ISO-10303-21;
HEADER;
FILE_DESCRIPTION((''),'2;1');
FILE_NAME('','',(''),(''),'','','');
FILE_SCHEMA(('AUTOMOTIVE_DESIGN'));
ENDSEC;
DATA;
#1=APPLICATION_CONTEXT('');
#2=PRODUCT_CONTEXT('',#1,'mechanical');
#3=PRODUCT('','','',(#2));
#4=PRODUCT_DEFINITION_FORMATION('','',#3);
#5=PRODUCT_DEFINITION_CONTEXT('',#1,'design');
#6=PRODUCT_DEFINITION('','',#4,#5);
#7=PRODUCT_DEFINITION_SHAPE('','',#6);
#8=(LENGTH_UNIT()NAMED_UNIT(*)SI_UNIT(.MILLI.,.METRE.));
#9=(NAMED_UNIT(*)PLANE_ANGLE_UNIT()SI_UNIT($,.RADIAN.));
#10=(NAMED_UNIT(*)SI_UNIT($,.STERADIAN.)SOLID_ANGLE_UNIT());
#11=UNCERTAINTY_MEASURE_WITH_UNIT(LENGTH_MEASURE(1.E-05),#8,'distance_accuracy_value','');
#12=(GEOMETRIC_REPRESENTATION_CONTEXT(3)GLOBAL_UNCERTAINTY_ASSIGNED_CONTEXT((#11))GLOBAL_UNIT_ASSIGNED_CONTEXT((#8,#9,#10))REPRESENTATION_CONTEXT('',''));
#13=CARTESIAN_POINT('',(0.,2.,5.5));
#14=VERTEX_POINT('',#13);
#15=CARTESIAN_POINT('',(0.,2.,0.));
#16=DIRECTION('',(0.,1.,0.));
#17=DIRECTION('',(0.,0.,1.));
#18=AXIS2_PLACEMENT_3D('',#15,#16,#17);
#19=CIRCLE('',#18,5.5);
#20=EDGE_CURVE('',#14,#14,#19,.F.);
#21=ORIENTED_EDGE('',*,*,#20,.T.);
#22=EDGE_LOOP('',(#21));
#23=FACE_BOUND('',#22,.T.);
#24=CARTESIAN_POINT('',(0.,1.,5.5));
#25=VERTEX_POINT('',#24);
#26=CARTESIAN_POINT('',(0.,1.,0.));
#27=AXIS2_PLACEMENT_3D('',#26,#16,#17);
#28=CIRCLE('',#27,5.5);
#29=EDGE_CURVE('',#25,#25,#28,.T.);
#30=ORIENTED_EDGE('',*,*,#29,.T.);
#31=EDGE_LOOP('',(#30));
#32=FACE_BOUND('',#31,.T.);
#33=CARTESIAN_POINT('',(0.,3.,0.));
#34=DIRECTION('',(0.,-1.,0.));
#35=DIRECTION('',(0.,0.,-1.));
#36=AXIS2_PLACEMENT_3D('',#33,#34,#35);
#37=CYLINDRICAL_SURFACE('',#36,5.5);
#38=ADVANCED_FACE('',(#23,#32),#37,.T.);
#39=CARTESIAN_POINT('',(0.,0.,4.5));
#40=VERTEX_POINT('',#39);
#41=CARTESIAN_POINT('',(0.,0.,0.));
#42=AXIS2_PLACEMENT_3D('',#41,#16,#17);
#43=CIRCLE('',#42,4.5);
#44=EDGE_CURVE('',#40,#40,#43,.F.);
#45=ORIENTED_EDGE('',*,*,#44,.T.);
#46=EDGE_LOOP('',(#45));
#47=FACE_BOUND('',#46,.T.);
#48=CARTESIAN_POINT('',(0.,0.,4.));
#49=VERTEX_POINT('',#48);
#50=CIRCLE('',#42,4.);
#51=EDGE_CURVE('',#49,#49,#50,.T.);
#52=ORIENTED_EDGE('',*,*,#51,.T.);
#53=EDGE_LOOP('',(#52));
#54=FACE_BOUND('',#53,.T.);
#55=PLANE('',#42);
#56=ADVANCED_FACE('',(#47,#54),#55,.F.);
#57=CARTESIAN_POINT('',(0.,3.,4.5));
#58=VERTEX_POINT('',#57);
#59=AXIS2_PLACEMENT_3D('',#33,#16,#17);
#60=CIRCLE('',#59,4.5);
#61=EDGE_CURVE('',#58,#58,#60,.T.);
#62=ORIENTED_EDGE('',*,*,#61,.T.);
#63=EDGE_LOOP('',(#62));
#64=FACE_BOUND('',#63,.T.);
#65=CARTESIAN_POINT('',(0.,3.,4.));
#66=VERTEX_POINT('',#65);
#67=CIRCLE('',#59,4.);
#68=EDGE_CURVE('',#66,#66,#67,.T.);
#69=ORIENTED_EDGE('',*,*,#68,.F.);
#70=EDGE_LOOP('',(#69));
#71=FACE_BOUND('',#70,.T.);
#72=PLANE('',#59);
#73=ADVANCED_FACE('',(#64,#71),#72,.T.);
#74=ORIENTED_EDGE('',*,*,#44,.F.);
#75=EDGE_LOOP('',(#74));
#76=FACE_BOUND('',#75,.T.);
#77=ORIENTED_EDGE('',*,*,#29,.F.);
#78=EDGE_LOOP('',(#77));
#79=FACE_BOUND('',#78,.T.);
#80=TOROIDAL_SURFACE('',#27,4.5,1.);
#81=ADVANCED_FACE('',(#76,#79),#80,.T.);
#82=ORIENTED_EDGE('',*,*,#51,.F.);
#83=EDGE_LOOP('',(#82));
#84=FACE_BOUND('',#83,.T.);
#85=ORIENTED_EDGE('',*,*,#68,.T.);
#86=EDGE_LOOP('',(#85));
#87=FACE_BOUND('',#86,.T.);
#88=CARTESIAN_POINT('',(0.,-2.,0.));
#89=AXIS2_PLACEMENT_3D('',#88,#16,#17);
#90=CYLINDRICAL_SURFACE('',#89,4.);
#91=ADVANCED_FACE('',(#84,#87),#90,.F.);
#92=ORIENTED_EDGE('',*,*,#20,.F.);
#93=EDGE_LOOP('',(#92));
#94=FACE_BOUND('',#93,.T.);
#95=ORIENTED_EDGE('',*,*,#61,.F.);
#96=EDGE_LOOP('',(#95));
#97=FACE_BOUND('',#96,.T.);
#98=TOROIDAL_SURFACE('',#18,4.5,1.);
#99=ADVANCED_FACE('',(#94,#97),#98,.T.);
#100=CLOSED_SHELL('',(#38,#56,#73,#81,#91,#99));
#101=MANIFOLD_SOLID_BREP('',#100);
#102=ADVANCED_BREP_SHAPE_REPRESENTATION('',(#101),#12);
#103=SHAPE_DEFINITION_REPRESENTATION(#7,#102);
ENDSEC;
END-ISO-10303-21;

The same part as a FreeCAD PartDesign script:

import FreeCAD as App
import Part
import Sketcher
from FreeCAD import Vector
Q = App.Units.Quantity


def edges_at(feature, points):
    """Names of the edges that pass closest to the given points."""
    edges = feature.Shape.Edges
    near = lambda p: min(range(len(edges)), key=lambda i: edges[i].distToShape(Part.Vertex(*p))[0])
    return sorted({f"Edge{near(p) + 1}" for p in points})

doc = App.newDocument("Part")
body = doc.addObject("PartDesign::Body", "Body")

sketch1 = doc.addObject("Sketcher::SketchObject", "Sketch")
body.addObject(sketch1)
sketch1.AttachmentSupport = (doc.XZ_Plane, [""])
sketch1.MapMode = "FlatFace"
sketch1.addGeometry(Part.Circle(Vector(0, 0, 0), Vector(0, 0, 1), 6), False)
sketch1.addConstraint([
    Sketcher.Constraint("Coincident", 0, 3, -1, 1),
    Sketcher.Constraint("Diameter", 0, Q("11 mm")),
])
pad1 = doc.addObject("PartDesign::Pad", "Pad")
body.addObject(pad1)
pad1.Profile = sketch1
pad1.Length = 3
pad1.Reversed = True

sketch2 = doc.addObject("Sketcher::SketchObject", "Sketch001")
body.addObject(sketch2)
sketch2.AttachmentSupport = (doc.XZ_Plane, [""])
sketch2.MapMode = "FlatFace"
sketch2.AttachmentOffset = App.Placement(Vector(0, 0, -3), App.Rotation())
sketch2.addGeometry(Part.Circle(Vector(0, 0, 0), Vector(0, 0, 1), 4), False)
sketch2.addConstraint([
    Sketcher.Constraint("Coincident", 0, 3, -1, 1),
    Sketcher.Constraint("Diameter", 0, Q("8 mm")),
])
pocket1 = doc.addObject("PartDesign::Pocket", "Pocket")
body.addObject(pocket1)
pocket1.Profile = sketch2
pocket1.Length = 5
pocket1.Reversed = True
doc.recompute()

fillet = doc.addObject("PartDesign::Fillet", "Fillet")
body.addObject(fillet)
fillet.Base = (pocket1, edges_at(pocket1, [(0, 3, -5.5)]))
fillet.Radius = 1
doc.recompute()

fillet2 = doc.addObject("PartDesign::Fillet", "Fillet001")
body.addObject(fillet2)
fillet2.Base = (fillet, edges_at(fillet, [(0, 0, -5.5)]))
fillet2.Radius = 1

doc.recompute()
